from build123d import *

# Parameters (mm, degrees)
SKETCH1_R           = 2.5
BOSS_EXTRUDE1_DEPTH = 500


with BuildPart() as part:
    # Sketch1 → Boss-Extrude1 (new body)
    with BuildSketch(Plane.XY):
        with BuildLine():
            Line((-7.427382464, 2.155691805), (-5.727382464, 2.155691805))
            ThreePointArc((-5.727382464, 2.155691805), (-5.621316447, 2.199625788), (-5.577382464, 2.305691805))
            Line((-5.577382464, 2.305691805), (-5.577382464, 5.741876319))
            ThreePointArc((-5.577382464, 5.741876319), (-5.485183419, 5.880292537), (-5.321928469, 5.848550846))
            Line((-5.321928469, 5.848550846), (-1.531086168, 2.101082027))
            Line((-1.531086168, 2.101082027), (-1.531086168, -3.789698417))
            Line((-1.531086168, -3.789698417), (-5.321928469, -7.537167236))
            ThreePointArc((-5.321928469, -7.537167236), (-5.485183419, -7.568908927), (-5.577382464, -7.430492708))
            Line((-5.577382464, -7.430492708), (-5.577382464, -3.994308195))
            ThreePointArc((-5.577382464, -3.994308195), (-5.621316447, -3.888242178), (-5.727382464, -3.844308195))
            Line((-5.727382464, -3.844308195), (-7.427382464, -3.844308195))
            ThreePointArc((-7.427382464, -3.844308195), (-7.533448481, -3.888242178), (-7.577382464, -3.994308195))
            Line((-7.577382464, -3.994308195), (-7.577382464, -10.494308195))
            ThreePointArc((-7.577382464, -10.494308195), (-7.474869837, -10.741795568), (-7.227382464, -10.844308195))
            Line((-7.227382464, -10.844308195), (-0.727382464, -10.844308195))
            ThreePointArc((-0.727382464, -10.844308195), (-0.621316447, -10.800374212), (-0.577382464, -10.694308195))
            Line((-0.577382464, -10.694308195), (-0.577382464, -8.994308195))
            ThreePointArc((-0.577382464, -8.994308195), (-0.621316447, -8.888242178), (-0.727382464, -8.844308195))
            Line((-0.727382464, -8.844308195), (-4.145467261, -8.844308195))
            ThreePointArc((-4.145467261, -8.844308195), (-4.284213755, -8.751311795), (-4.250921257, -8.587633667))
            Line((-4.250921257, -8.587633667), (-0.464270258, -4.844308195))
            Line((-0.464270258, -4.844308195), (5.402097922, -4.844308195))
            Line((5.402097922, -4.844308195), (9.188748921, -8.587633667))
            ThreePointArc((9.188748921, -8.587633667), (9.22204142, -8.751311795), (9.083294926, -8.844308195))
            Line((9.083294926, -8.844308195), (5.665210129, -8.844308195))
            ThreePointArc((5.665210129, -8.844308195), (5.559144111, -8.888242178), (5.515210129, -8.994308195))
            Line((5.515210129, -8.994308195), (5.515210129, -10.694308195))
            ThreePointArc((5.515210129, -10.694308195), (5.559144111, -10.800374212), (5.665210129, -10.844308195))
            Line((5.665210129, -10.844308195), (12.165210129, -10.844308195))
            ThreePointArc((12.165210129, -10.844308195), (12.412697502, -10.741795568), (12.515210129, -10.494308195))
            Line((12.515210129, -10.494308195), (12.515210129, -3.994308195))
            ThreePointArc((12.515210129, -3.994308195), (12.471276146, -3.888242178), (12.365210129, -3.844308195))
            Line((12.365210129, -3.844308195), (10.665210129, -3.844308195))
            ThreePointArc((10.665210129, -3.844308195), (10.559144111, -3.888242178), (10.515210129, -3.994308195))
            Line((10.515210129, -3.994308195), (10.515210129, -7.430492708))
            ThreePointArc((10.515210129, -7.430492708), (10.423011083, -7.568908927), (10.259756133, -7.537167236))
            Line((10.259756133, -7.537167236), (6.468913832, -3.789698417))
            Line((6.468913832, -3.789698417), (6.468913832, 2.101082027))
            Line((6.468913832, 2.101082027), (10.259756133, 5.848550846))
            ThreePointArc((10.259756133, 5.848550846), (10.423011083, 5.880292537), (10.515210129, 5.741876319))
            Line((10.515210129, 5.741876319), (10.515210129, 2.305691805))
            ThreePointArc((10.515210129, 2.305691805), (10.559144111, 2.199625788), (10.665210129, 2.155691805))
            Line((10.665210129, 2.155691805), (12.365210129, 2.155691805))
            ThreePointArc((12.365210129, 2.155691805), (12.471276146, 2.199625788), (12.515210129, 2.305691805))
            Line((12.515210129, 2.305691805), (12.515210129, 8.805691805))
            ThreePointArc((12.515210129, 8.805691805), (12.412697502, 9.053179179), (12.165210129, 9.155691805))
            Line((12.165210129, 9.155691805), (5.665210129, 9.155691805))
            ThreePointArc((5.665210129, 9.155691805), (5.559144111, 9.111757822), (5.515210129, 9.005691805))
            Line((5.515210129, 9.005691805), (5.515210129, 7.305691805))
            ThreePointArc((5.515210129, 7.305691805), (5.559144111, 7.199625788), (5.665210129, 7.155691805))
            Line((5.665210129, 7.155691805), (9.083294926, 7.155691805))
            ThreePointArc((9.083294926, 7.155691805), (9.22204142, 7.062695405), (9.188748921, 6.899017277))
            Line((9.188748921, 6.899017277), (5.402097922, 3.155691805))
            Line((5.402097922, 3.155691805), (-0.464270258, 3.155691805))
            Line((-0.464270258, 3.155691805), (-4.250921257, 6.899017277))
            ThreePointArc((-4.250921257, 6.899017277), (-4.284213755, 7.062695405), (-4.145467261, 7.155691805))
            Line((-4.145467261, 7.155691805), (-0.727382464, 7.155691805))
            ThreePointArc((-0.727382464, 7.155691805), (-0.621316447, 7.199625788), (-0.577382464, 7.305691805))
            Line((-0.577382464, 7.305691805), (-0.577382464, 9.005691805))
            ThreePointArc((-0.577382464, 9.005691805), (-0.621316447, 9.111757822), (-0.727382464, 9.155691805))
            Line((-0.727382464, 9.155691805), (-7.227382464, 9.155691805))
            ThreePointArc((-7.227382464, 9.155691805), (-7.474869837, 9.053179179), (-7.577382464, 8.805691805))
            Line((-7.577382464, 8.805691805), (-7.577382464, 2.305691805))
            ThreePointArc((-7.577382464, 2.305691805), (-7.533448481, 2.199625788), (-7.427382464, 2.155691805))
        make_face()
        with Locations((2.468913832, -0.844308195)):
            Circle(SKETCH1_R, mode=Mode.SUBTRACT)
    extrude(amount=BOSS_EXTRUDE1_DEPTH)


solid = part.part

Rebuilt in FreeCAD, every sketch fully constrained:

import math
import FreeCAD as App
import Part
import Sketcher
Q = App.Units.Quantity

doc = App.newDocument("Part")
body = doc.addObject("PartDesign::Body", "Body")

sketch1 = body.newObject("Sketcher::SketchObject", "Sketch")
sketch1.AttachmentSupport = (doc.getObject("XY_Plane"), [""])
sketch1.MapMode = "FlatFace"
sketch1.addGeometry([
    Part.LineSegment(App.Vector(-7.43, 2.16, 0), App.Vector(-5.73, 2.16, 0)),
    Part.ArcOfCircle(Part.Circle(App.Vector(-5.73, 2.31, 0), App.Vector(0, 0, 1), 0.15), math.radians(-90), math.radians(0)),
    Part.LineSegment(App.Vector(-5.58, 2.31, 0), App.Vector(-5.58, 5.74, 0)),
    Part.ArcOfCircle(Part.Circle(App.Vector(-5.43, 5.74, 0), App.Vector(0, 0, 1), 0.15), math.radians(45), math.radians(180)),
    Part.LineSegment(App.Vector(-5.32, 5.85, 0), App.Vector(-1.53, 2.1, 0)),
    Part.LineSegment(App.Vector(-1.53, 2.1, 0), App.Vector(-1.53, -3.79, 0)),
    Part.LineSegment(App.Vector(-1.53, -3.79, 0), App.Vector(-5.32, -7.54, 0)),
    Part.ArcOfCircle(Part.Circle(App.Vector(-5.43, -7.43, 0), App.Vector(0, 0, 1), 0.15), math.radians(180), math.radians(315)),
    Part.LineSegment(App.Vector(-5.58, -7.43, 0), App.Vector(-5.58, -3.99, 0)),
    Part.ArcOfCircle(Part.Circle(App.Vector(-5.73, -3.99, 0), App.Vector(0, 0, 1), 0.15), math.radians(0), math.radians(90)),
    Part.LineSegment(App.Vector(-5.73, -3.84, 0), App.Vector(-7.43, -3.84, 0)),
    Part.ArcOfCircle(Part.Circle(App.Vector(-7.43, -3.99, 0), App.Vector(0, 0, 1), 0.15), math.radians(90), math.radians(180)),
    Part.LineSegment(App.Vector(-7.58, -3.99, 0), App.Vector(-7.58, -10.49, 0)),
    Part.ArcOfCircle(Part.Circle(App.Vector(-7.23, -10.49, 0), App.Vector(0, 0, 1), 0.35), math.radians(-180), math.radians(-90)),
    Part.LineSegment(App.Vector(-7.23, -10.84, 0), App.Vector(-0.73, -10.84, 0)),
    Part.ArcOfCircle(Part.Circle(App.Vector(-0.73, -10.69, 0), App.Vector(0, 0, 1), 0.15), math.radians(-90), math.radians(0)),
    Part.LineSegment(App.Vector(-0.58, -10.69, 0), App.Vector(-0.58, -8.99, 0)),
    Part.ArcOfCircle(Part.Circle(App.Vector(-0.73, -8.99, 0), App.Vector(0, 0, 1), 0.15), math.radians(0), math.radians(90)),
    Part.LineSegment(App.Vector(-0.73, -8.84, 0), App.Vector(-4.15, -8.84, 0)),
    Part.ArcOfCircle(Part.Circle(App.Vector(-4.15, -8.69, 0), App.Vector(0, 0, 1), 0.15), math.radians(135), math.radians(270)),
    Part.LineSegment(App.Vector(-4.25, -8.59, 0), App.Vector(-0.46, -4.84, 0)),
    Part.LineSegment(App.Vector(-0.46, -4.84, 0), App.Vector(5.4, -4.84, 0)),
    Part.LineSegment(App.Vector(5.4, -4.84, 0), App.Vector(9.19, -8.59, 0)),
    Part.ArcOfCircle(Part.Circle(App.Vector(9.08, -8.69, 0), App.Vector(0, 0, 1), 0.15), math.radians(-90), math.radians(45)),
    Part.LineSegment(App.Vector(9.08, -8.84, 0), App.Vector(5.67, -8.84, 0)),
    Part.ArcOfCircle(Part.Circle(App.Vector(5.67, -8.99, 0), App.Vector(0, 0, 1), 0.15), math.radians(90), math.radians(180)),
    Part.LineSegment(App.Vector(5.52, -8.99, 0), App.Vector(5.52, -10.69, 0)),
    Part.ArcOfCircle(Part.Circle(App.Vector(5.67, -10.69, 0), App.Vector(0, 0, 1), 0.15), math.radians(180), math.radians(270)),
    Part.LineSegment(App.Vector(5.67, -10.84, 0), App.Vector(12.17, -10.84, 0)),
    Part.ArcOfCircle(Part.Circle(App.Vector(12.17, -10.49, 0), App.Vector(0, 0, 1), 0.35), math.radians(-90), math.radians(0)),
    Part.LineSegment(App.Vector(12.52, -10.49, 0), App.Vector(12.52, -3.99, 0)),
    Part.ArcOfCircle(Part.Circle(App.Vector(12.37, -3.99, 0), App.Vector(0, 0, 1), 0.15), math.radians(0), math.radians(90)),
    Part.LineSegment(App.Vector(12.37, -3.84, 0), App.Vector(10.67, -3.84, 0)),
    Part.ArcOfCircle(Part.Circle(App.Vector(10.67, -3.99, 0), App.Vector(0, 0, 1), 0.15), math.radians(90), math.radians(180)),
    Part.LineSegment(App.Vector(10.52, -3.99, 0), App.Vector(10.52, -7.43, 0)),
    Part.ArcOfCircle(Part.Circle(App.Vector(10.37, -7.43, 0), App.Vector(0, 0, 1), 0.15), math.radians(-135), math.radians(0)),
    Part.LineSegment(App.Vector(10.26, -7.54, 0), App.Vector(6.47, -3.79, 0)),
    Part.LineSegment(App.Vector(6.47, -3.79, 0), App.Vector(6.47, 2.1, 0)),
    Part.LineSegment(App.Vector(6.47, 2.1, 0), App.Vector(10.26, 5.85, 0)),
    Part.ArcOfCircle(Part.Circle(App.Vector(10.37, 5.74, 0), App.Vector(0, 0, 1), 0.15), math.radians(0), math.radians(135)),
    Part.LineSegment(App.Vector(10.52, 5.74, 0), App.Vector(10.52, 2.31, 0)),
    Part.ArcOfCircle(Part.Circle(App.Vector(10.67, 2.31, 0), App.Vector(0, 0, 1), 0.15), math.radians(180), math.radians(270)),
    Part.LineSegment(App.Vector(10.67, 2.16, 0), App.Vector(12.37, 2.16, 0)),
    Part.ArcOfCircle(Part.Circle(App.Vector(12.37, 2.31, 0), App.Vector(0, 0, 1), 0.15), math.radians(-90), math.radians(0)),
    Part.LineSegment(App.Vector(12.52, 2.31, 0), App.Vector(12.52, 8.81, 0)),
    Part.ArcOfCircle(Part.Circle(App.Vector(12.17, 8.81, 0), App.Vector(0, 0, 1), 0.35), math.radians(0), math.radians(90)),
    Part.LineSegment(App.Vector(12.17, 9.16, 0), App.Vector(5.67, 9.16, 0)),
    Part.ArcOfCircle(Part.Circle(App.Vector(5.67, 9.01, 0), App.Vector(0, 0, 1), 0.15), math.radians(90), math.radians(180)),
    Part.LineSegment(App.Vector(5.52, 9.01, 0), App.Vector(5.52, 7.31, 0)),
    Part.ArcOfCircle(Part.Circle(App.Vector(5.67, 7.31, 0), App.Vector(0, 0, 1), 0.15), math.radians(180), math.radians(270)),
    Part.LineSegment(App.Vector(5.67, 7.16, 0), App.Vector(9.08, 7.16, 0)),
    Part.ArcOfCircle(Part.Circle(App.Vector(9.08, 7.01, 0), App.Vector(0, 0, 1), 0.15), math.radians(-45), math.radians(90)),
    Part.LineSegment(App.Vector(9.19, 6.9, 0), App.Vector(5.4, 3.16, 0)),
    Part.LineSegment(App.Vector(5.4, 3.16, 0), App.Vector(-0.46, 3.16, 0)),
    Part.LineSegment(App.Vector(-0.46, 3.16, 0), App.Vector(-4.25, 6.9, 0)),
    Part.ArcOfCircle(Part.Circle(App.Vector(-4.15, 7.01, 0), App.Vector(0, 0, 1), 0.15), math.radians(90), math.radians(225)),
    Part.LineSegment(App.Vector(-4.15, 7.16, 0), App.Vector(-0.73, 7.16, 0)),
    Part.ArcOfCircle(Part.Circle(App.Vector(-0.73, 7.31, 0), App.Vector(0, 0, 1), 0.15), math.radians(-90), math.radians(0)),
    Part.LineSegment(App.Vector(-0.58, 7.31, 0), App.Vector(-0.58, 9.01, 0)),
    Part.ArcOfCircle(Part.Circle(App.Vector(-0.73, 9.01, 0), App.Vector(0, 0, 1), 0.15), math.radians(0), math.radians(90)),
    Part.LineSegment(App.Vector(-0.73, 9.16, 0), App.Vector(-7.23, 9.16, 0)),
    Part.ArcOfCircle(Part.Circle(App.Vector(-7.23, 8.81, 0), App.Vector(0, 0, 1), 0.35), math.radians(90), math.radians(180)),
    Part.LineSegment(App.Vector(-7.58, 8.81, 0), App.Vector(-7.58, 2.31, 0)),
    Part.ArcOfCircle(Part.Circle(App.Vector(-7.43, 2.31, 0), App.Vector(0, 0, 1), 0.15), math.radians(-180), math.radians(-90)),
    Part.Circle(App.Vector(2.47, -0.84, 0), App.Vector(0, 0, 1), 2.5),
], False)
sketch1.addConstraint([
    Sketcher.Constraint("Tangent", 0, 2, 1, 1),
    Sketcher.Constraint("Tangent", 1, 2, 2, 1),
    Sketcher.Constraint("Tangent", 2, 2, 3, 2),
    Sketcher.Constraint("Tangent", 3, 1, 4, 1),
    Sketcher.Constraint("Coincident", 4, 2, 5, 1),
    Sketcher.Constraint("Coincident", 5, 2, 6, 1),
    Sketcher.Constraint("Tangent", 6, 2, 7, 2),
    Sketcher.Constraint("Tangent", 7, 1, 8, 1),
    Sketcher.Constraint("Tangent", 8, 2, 9, 1),
    Sketcher.Constraint("Tangent", 9, 2, 10, 1),
    Sketcher.Constraint("Tangent", 10, 2, 11, 1),
    Sketcher.Constraint("Tangent", 11, 2, 12, 1),
    Sketcher.Constraint("Tangent", 12, 2, 13, 1),
    Sketcher.Constraint("Tangent", 13, 2, 14, 1),
    Sketcher.Constraint("Tangent", 14, 2, 15, 1),
    Sketcher.Constraint("Tangent", 15, 2, 16, 1),
    Sketcher.Constraint("Tangent", 16, 2, 17, 1),
    Sketcher.Constraint("Tangent", 17, 2, 18, 1),
    Sketcher.Constraint("Tangent", 18, 2, 19, 2),
    Sketcher.Constraint("Tangent", 19, 1, 20, 1),
    Sketcher.Constraint("Coincident", 20, 2, 21, 1),
    Sketcher.Constraint("Coincident", 21, 2, 22, 1),
    Sketcher.Constraint("Tangent", 22, 2, 23, 2),
    Sketcher.Constraint("Tangent", 23, 1, 24, 1),
    Sketcher.Constraint("Tangent", 24, 2, 25, 1),
    Sketcher.Constraint("Tangent", 25, 2, 26, 1),
    Sketcher.Constraint("Tangent", 26, 2, 27, 1),
    Sketcher.Constraint("Tangent", 27, 2, 28, 1),
    Sketcher.Constraint("Tangent", 28, 2, 29, 1),
    Sketcher.Constraint("Tangent", 29, 2, 30, 1),
    Sketcher.Constraint("Tangent", 30, 2, 31, 1),
    Sketcher.Constraint("Tangent", 31, 2, 32, 1),
    Sketcher.Constraint("Tangent", 32, 2, 33, 1),
    Sketcher.Constraint("Tangent", 33, 2, 34, 1),
    Sketcher.Constraint("Tangent", 34, 2, 35, 2),
    Sketcher.Constraint("Tangent", 35, 1, 36, 1),
    Sketcher.Constraint("Coincident", 36, 2, 37, 1),
    Sketcher.Constraint("Coincident", 37, 2, 38, 1),
    Sketcher.Constraint("Tangent", 38, 2, 39, 2),
    Sketcher.Constraint("Tangent", 39, 1, 40, 1),
    Sketcher.Constraint("Tangent", 40, 2, 41, 1),
    Sketcher.Constraint("Tangent", 41, 2, 42, 1),
    Sketcher.Constraint("Tangent", 42, 2, 43, 1),
    Sketcher.Constraint("Tangent", 43, 2, 44, 1),
    Sketcher.Constraint("Tangent", 44, 2, 45, 1),
    Sketcher.Constraint("Tangent", 45, 2, 46, 1),
    Sketcher.Constraint("Tangent", 46, 2, 47, 1),
    Sketcher.Constraint("Tangent", 47, 2, 48, 1),
    Sketcher.Constraint("Tangent", 48, 2, 49, 1),
    Sketcher.Constraint("Tangent", 49, 2, 50, 1),
    Sketcher.Constraint("Tangent", 50, 2, 51, 2),
    Sketcher.Constraint("Tangent", 51, 1, 52, 1),
    Sketcher.Constraint("Coincident", 52, 2, 53, 1),
    Sketcher.Constraint("Coincident", 53, 2, 54, 1),
    Sketcher.Constraint("Tangent", 54, 2, 55, 2),
    Sketcher.Constraint("Tangent", 55, 1, 56, 1),
    Sketcher.Constraint("Tangent", 56, 2, 57, 1),
    Sketcher.Constraint("Tangent", 57, 2, 58, 1),
    Sketcher.Constraint("Tangent", 58, 2, 59, 1),
    Sketcher.Constraint("Tangent", 59, 2, 60, 1),
    Sketcher.Constraint("Tangent", 60, 2, 61, 1),
    Sketcher.Constraint("Tangent", 61, 2, 62, 1),
    Sketcher.Constraint("Tangent", 62, 2, 63, 1),
    Sketcher.Constraint("Tangent", 63, 2, 0, 1),
    Sketcher.Constraint("Horizontal", 0),
    Sketcher.Constraint("Vertical", 2),
    Sketcher.Constraint("Vertical", 5),
    Sketcher.Constraint("Vertical", 8),
    Sketcher.Constraint("Horizontal", 10),
    Sketcher.Constraint("Vertical", 12),
    Sketcher.Constraint("Horizontal", 14),
    Sketcher.Constraint("Vertical", 16),
    Sketcher.Constraint("Horizontal", 18),
    Sketcher.Constraint("Horizontal", 21),
    Sketcher.Constraint("Horizontal", 24),
    Sketcher.Constraint("Vertical", 26),
    Sketcher.Constraint("Horizontal", 28),
    Sketcher.Constraint("Vertical", 30),
    Sketcher.Constraint("Horizontal", 32),
    Sketcher.Constraint("Vertical", 34),
    Sketcher.Constraint("Vertical", 37),
    Sketcher.Constraint("Vertical", 40),
    Sketcher.Constraint("Horizontal", 42),
    Sketcher.Constraint("Vertical", 44),
    Sketcher.Constraint("Horizontal", 46),
    Sketcher.Constraint("Vertical", 48),
    Sketcher.Constraint("Horizontal", 50),
    Sketcher.Constraint("Horizontal", 53),
    Sketcher.Constraint("Horizontal", 56),
    Sketcher.Constraint("Vertical", 58),
    Sketcher.Constraint("Horizontal", 60),
    Sketcher.Constraint("Vertical", 62),
    Sketcher.Constraint("Equal", 1, 3),
    Sketcher.Constraint("Equal", 3, 7),
    Sketcher.Constraint("Equal", 7, 9),
    Sketcher.Constraint("Equal", 9, 11),
    Sketcher.Constraint("Equal", 11, 15),
    Sketcher.Constraint("Equal", 15, 17),
    Sketcher.Constraint("Equal", 17, 19),
    Sketcher.Constraint("Equal", 19, 23),
    Sketcher.Constraint("Equal", 23, 25),
    Sketcher.Constraint("Equal", 25, 27),
    Sketcher.Constraint("Equal", 13, 29),
    Sketcher.Constraint("Equal", 27, 31),
    Sketcher.Constraint("Equal", 31, 33),
    Sketcher.Constraint("Equal", 33, 35),
    Sketcher.Constraint("Equal", 35, 39),
    Sketcher.Constraint("Equal", 39, 41),
    Sketcher.Constraint("Equal", 41, 43),
    Sketcher.Constraint("Equal", 29, 45),
    Sketcher.Constraint("Equal", 43, 47),
    Sketcher.Constraint("Equal", 47, 49),
    Sketcher.Constraint("Equal", 49, 51),
    Sketcher.Constraint("Equal", 51, 55),
    Sketcher.Constraint("Equal", 55, 57),
    Sketcher.Constraint("Equal", 57, 59),
    Sketcher.Constraint("Equal", 45, 61),
    Sketcher.Constraint("Equal", 59, 63),
    Sketcher.Constraint("Parallel", 6, 20),
    Sketcher.Constraint("Parallel", 4, 22),
    Sketcher.Constraint("Parallel", 22, 36),
    Sketcher.Constraint("Parallel", 20, 38),
    Sketcher.Constraint("Parallel", 38, 52),
    Sketcher.Constraint("Parallel", 36, 54),
    Sketcher.Constraint("Horizontal", 19, 3, 23, 3),
    Sketcher.Constraint("Horizontal", 15, 3, 27, 3),
    Sketcher.Constraint("Horizontal", 11, 3, 31, 3),
    Sketcher.Constraint("Horizontal", 7, 3, 35, 3),
    Sketcher.Constraint("Horizontal", 3, 3, 39, 3),
    Sketcher.Constraint("Horizontal", 1, 3, 41, 3),
    Sketcher.Constraint("Horizontal", 51, 3, 55, 3),
    Sketcher.Constraint("Horizontal", 47, 3, 59, 3),
    Sketcher.Constraint("Horizontal", 19, 1, 22, 2),
    Sketcher.Constraint("Horizontal", 5, 2, 36, 2),
    Sketcher.Constraint("Horizontal", 4, 2, 37, 2),
    Sketcher.Constraint("Vertical", 3, 3, 7, 3),
    Sketcher.Constraint("Vertical", 31, 3, 43, 3),
    Sketcher.Constraint("Vertical", 27, 3, 47, 3),
    Sketcher.Constraint("Vertical", 23, 3, 51, 3),
    Sketcher.Constraint("Vertical", 19, 3, 55, 3),
    Sketcher.Constraint("Vertical", 17, 3, 57, 3),
    Sketcher.Constraint("Vertical", 13, 3, 61, 3),
    Sketcher.Constraint("Vertical", 21, 2, 52, 2),
    Sketcher.Constraint("Equal", 18, 24),
    Sketcher.Constraint("Equal", 14, 28),
    Sketcher.Constraint("Equal", 10, 32),
    Sketcher.Constraint("Equal", 2, 8),
    Sketcher.Constraint("Equal", 60, 12),
    Sketcher.Constraint("Equal", 42, 16),
    Sketcher.Constraint("Equal", 30, 44),
    Sketcher.Constraint("Equal", 26, 48),
    Sketcher.Constraint("Diameter", 64, Q("5 mm")),
    Sketcher.Constraint("Radius", 1, Q("0.15 mm")),
    Sketcher.Constraint("Radius", 13, Q("0.35 mm")),
    Sketcher.Constraint("DistanceX", 0, 1, 0, 2, Q("1.7 mm")),
    Sketcher.Constraint("DistanceX", 14, 1, 14, 2, Q("6.5 mm")),
    Sketcher.Constraint("DistanceX", 21, 1, 21, 2, Q("5.866368 mm")),
    Sketcher.Constraint("DistanceY", 5, 2, 5, 1, Q("5.89078 mm")),
    Sketcher.Constraint("DistanceY", 5, 2, -1, 1, Q("3.789698 mm")),
    Sketcher.Constraint("Distance", 4, Q("5.330479 mm")),
    Sketcher.Constraint("DistanceX", 18, 2, 18, 1, Q("3.418085 mm")),
    Sketcher.Constraint("DistanceY", 2, 1, 2, 2, Q("3.436185 mm")),
    Sketcher.Constraint("DistanceY", -1, 1, 1, 3, Q("2.305692 mm")),
    Sketcher.Constraint("DistanceX", -1, 1, 25, 3, Q("5.66521 mm")),
    Sketcher.Constraint("DistanceY", 64, 3, -1, 1, Q("0.844308 mm")),
    Sketcher.Constraint("DistanceX", 3, 1, -1, 1, Q("5.321928 mm")),
    Sketcher.Constraint("DistanceX", -1, 1, 64, 3, Q("2.468914 mm")),
])
pad1 = body.newObject("PartDesign::Pad", "Pad")
pad1.Profile = sketch1
pad1.Length = 500

doc.recompute()
